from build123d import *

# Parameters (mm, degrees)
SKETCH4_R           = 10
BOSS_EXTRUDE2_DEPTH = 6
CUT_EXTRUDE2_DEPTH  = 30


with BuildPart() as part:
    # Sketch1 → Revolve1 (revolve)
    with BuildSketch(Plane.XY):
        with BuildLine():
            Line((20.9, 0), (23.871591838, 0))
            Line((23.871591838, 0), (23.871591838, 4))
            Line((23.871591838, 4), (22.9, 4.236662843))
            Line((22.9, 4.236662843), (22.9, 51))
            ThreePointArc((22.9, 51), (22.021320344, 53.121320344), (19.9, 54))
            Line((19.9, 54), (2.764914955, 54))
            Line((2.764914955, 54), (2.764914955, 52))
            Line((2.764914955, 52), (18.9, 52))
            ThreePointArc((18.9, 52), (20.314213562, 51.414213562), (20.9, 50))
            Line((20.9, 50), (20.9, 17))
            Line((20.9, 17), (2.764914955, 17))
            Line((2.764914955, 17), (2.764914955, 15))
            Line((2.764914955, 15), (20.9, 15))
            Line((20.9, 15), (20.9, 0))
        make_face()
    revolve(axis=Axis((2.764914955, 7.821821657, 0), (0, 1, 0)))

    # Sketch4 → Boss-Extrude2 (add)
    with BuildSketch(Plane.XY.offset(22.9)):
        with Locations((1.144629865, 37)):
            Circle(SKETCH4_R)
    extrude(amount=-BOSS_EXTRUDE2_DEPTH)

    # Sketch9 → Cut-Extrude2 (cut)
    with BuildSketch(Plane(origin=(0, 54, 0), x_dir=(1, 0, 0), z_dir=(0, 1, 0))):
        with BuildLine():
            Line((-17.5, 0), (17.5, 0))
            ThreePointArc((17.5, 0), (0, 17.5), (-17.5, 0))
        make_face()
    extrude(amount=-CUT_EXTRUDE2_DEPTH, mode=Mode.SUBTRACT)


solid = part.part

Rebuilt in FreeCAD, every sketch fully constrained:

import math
import FreeCAD as App
import Part
import Sketcher
from FreeCAD import Vector

doc = App.newDocument("Part")
params = doc.addObject("Spreadsheet::Sheet", "Params")
for row, (alias, value) in enumerate([
    ("sketch1_radius", "3 mm"),
    ("sketch1_radius2", "2 mm"),
    ("sketch1_height", "4 mm"),
    ("sketch1_height2", "2 mm"),
    ("sketch1_height3", "33 mm"),
    ("revolution_angle", "360 deg"),
    ("sketch2_diameter", "20 mm"),
    ("pad1_length", "6 mm"),
    ("sketch3_radius", "17.5 mm"),
    ("pocket1_length", "30 mm"),
], start=1):
    params.set(f"A{row}", alias)
    params.set(f"B{row}", "=" + value)
    params.setAlias(f"B{row}", alias)

body = doc.addObject("PartDesign::Body", "Body")

# Sketch on XY plane
sketch1 = doc.addObject("Sketcher::SketchObject", "Sketch")
body.addObject(sketch1)
sketch1.AttachmentSupport = (doc.XY_Plane, [""])
sketch1.MapMode = "FlatFace"
sketch1.addGeometry([
    Part.LineSegment(Vector(20.9, 0, 0), Vector(23.9, 0, 0)),  # 0
    Part.LineSegment(Vector(23.9, 0, 0), Vector(23.9, 4, 0)),  # 1
    Part.LineSegment(Vector(23.9, 4, 0), Vector(22.9, 4.2, 0)),  # 2
    Part.LineSegment(Vector(22.9, 4.2, 0), Vector(22.9, 51, 0)),  # 3
    Part.ArcOfCircle(Part.Circle(Vector(19.9, 51, 0), Vector(0, 0, 1), 3), math.radians(0), math.radians(90)),  # 4
    Part.LineSegment(Vector(19.9, 54, 0), Vector(2.8, 54, 0)),  # 5
    Part.LineSegment(Vector(2.8, 54, 0), Vector(2.8, 52, 0)),  # 6
    Part.LineSegment(Vector(2.8, 52, 0), Vector(18.9, 52, 0)),  # 7
    Part.ArcOfCircle(Part.Circle(Vector(18.9, 50, 0), Vector(0, 0, 1), 2), math.radians(0), math.radians(90)),  # 8
    Part.LineSegment(Vector(20.9, 50, 0), Vector(20.9, 17, 0)),  # 9
    Part.LineSegment(Vector(20.9, 17, 0), Vector(2.8, 17, 0)),  # 10
    Part.LineSegment(Vector(2.8, 17, 0), Vector(2.8, 15, 0)),  # 11
    Part.LineSegment(Vector(2.8, 15, 0), Vector(20.9, 15, 0)),  # 12
    Part.LineSegment(Vector(20.9, 15, 0), Vector(20.9, 0, 0)),  # 13
], False)
sketch1.addGeometry(Part.LineSegment(Vector(2.8, 0, 0), Vector(2.8, 54, 0)), True)  # axis
sketch1.addConstraint([
    Sketcher.Constraint("Coincident", 0, 2, 1, 1),
    Sketcher.Constraint("Coincident", 1, 2, 2, 1),
    Sketcher.Constraint("Coincident", 2, 2, 3, 1),
    Sketcher.Constraint("Tangent", 3, 2, 4, 1),
    Sketcher.Constraint("Tangent", 4, 2, 5, 1),
    Sketcher.Constraint("Coincident", 5, 2, 6, 1),
    Sketcher.Constraint("Coincident", 6, 2, 7, 1),
    Sketcher.Constraint("Tangent", 7, 2, 8, 2),
    Sketcher.Constraint("Tangent", 8, 1, 9, 1),
    Sketcher.Constraint("Coincident", 9, 2, 10, 1),
    Sketcher.Constraint("Coincident", 10, 2, 11, 1),
    Sketcher.Constraint("Coincident", 11, 2, 12, 1),
    Sketcher.Constraint("Coincident", 12, 2, 13, 1),
    Sketcher.Constraint("Coincident", 13, 2, 0, 1),
    Sketcher.Constraint("Horizontal", 0),
    Sketcher.Constraint("Vertical", 1),
    Sketcher.Constraint("Vertical", 3),
    Sketcher.Constraint("Horizontal", 5),
    Sketcher.Constraint("Vertical", 6),
    Sketcher.Constraint("Horizontal", 7),
    Sketcher.Constraint("Vertical", 9),
    Sketcher.Constraint("Horizontal", 10),
    Sketcher.Constraint("Vertical", 11),
    Sketcher.Constraint("Horizontal", 12),
    Sketcher.Constraint("Vertical", 13),
    Sketcher.Constraint("Vertical", 14),
    Sketcher.Constraint("Coincident", 14, 2, 5, 2),
    Sketcher.Constraint("PointOnObject", 0, 2, -1),
    Sketcher.Constraint("PointOnObject", 14, 1, -1),
    Sketcher.Constraint("Vertical", 6, 2, 10, 2),
    Sketcher.Constraint("Vertical", 9, 2, 12, 2),
    Sketcher.Constraint("Equal", 6, 11),
    Sketcher.Constraint("Radius", 4, 3.0),
    Sketcher.Constraint("Radius", 8, 2.0),
    Sketcher.Constraint("DistanceY", 1, 1, 1, 2, 4.0),
    Sketcher.Constraint("DistanceY", 6, 2, 6, 1, 2.0),
    Sketcher.Constraint("DistanceY", 9, 2, 9, 1, 33.0),
    Sketcher.Constraint("DistanceY", 13, 2, 13, 1, 15.0),
    Sketcher.Constraint("Distance", 2, 1.0),
    Sketcher.Constraint("DistanceX", 8, 3, 4, 3, 1.0),
    Sketcher.Constraint("DistanceX", -1, 1, 4, 3, 19.9),
    Sketcher.Constraint("DistanceX", 0, 1, 0, 2, 2.971592),
    Sketcher.Constraint("DistanceX", 5, 2, 5, 1, 17.135085),
])
sketch1.setExpression("Constraints[32]", "Params.sketch1_radius")
sketch1.setExpression("Constraints[33]", "Params.sketch1_radius2")
sketch1.setExpression("Constraints[34]", "Params.sketch1_height")
sketch1.setExpression("Constraints[35]", "Params.sketch1_height2")
sketch1.setExpression("Constraints[36]", "Params.sketch1_height3")
revolution = doc.addObject("PartDesign::Revolution", "Revolution")
body.addObject(revolution)
revolution.Profile = sketch1
revolution.ReferenceAxis = (sketch1, ["Axis0"])
revolution.setExpression("Angle", "Params.revolution_angle")

# Sketch on XY plane
sketch2 = doc.addObject("Sketcher::SketchObject", "Sketch001")
body.addObject(sketch2)
sketch2.AttachmentSupport = (doc.XY_Plane, [""])
sketch2.MapMode = "FlatFace"
sketch2.AttachmentOffset = App.Placement(Vector(0, 0, 22.9), App.Rotation())
sketch2.addGeometry(Part.Circle(Vector(1, 37, 0), Vector(0, 0, 1), 10), False)
sketch2.addConstraint([
    Sketcher.Constraint("Diameter", 0, 20.0),
    Sketcher.Constraint("DistanceY", -1, 1, 0, 3, 37.0),
    Sketcher.Constraint("DistanceX", -1, 1, 0, 3, 1.14463),
])
sketch2.setExpression("Constraints[0]", "Params.sketch2_diameter")
pad1 = doc.addObject("PartDesign::Pad", "Pad")
body.addObject(pad1)
pad1.Profile = sketch2
pad1.setExpression("Length", "Params.pad1_length")
pad1.Reversed = True

# Sketch on XZ plane
sketch3 = doc.addObject("Sketcher::SketchObject", "Sketch002")
body.addObject(sketch3)
sketch3.AttachmentSupport = (doc.XZ_Plane, [""])
sketch3.MapMode = "FlatFace"
sketch3.AttachmentOffset = App.Placement(Vector(0, 0, -54), App.Rotation())
sketch3.addGeometry([
    Part.LineSegment(Vector(-18, 0, 0), Vector(18, 0, 0)),
    Part.ArcOfCircle(Part.Circle(Vector(0, 0, 0), Vector(0, 0, 1), 18), math.radians(180), math.radians(360)),
], False)
sketch3.addConstraint([
    Sketcher.Constraint("Coincident", 0, 1, 1, 1),
    Sketcher.Constraint("Coincident", 1, 2, 0, 2),
    Sketcher.Constraint("Horizontal", 0),
    Sketcher.Constraint("Coincident", 1, 3, -1, 1),
    Sketcher.Constraint("PointOnObject", 0, 1, -1),
    Sketcher.Constraint("Radius", 1, 17.5),
])
sketch3.setExpression("Constraints[5]", "Params.sketch3_radius")
pocket1 = doc.addObject("PartDesign::Pocket", "Pocket")
body.addObject(pocket1)
pocket1.Profile = sketch3
pocket1.setExpression("Length", "Params.pocket1_length")
pocket1.Reversed = True

doc.recompute()
